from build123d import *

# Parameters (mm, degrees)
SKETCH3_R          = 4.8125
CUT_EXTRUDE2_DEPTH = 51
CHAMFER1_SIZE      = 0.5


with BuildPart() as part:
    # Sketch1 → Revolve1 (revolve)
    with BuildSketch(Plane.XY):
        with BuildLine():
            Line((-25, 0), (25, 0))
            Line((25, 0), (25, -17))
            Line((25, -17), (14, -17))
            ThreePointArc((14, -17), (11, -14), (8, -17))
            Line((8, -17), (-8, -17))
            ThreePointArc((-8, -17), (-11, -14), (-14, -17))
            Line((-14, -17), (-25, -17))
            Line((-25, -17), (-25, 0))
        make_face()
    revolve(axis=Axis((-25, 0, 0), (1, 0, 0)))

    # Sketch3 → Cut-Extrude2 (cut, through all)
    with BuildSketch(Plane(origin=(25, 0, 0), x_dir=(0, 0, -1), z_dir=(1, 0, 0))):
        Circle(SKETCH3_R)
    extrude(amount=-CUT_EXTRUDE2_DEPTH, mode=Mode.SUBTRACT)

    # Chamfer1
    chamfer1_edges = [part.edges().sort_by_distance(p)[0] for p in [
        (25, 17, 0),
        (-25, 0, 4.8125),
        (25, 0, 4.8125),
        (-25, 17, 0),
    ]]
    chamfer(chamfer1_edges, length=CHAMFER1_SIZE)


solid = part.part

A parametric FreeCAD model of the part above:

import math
import FreeCAD as App
import Part
import Sketcher
from FreeCAD import Vector


def edges_at(feature, points):
    """Names of the edges that pass closest to the given points."""
    edges = feature.Shape.Edges
    near = lambda p: min(range(len(edges)), key=lambda i: edges[i].distToShape(Part.Vertex(*p))[0])
    return sorted({f"Edge{near(p) + 1}" for p in points})

doc = App.newDocument("Part")
body = doc.addObject("PartDesign::Body", "Body")

# Sketch on XY plane
sketch1 = doc.addObject("Sketcher::SketchObject", "Sketch")
body.addObject(sketch1)
sketch1.AttachmentSupport = (doc.XY_Plane, [""])
sketch1.MapMode = "FlatFace"
sketch1.addGeometry([
    Part.LineSegment(Vector(25, 0, 0), Vector(-25, 0, 0)),  # 0
    Part.LineSegment(Vector(-25, 0, 0), Vector(-25, -17, 0)),  # 1
    Part.LineSegment(Vector(-25, -17, 0), Vector(-14, -17, 0)),  # 2
    Part.ArcOfCircle(Part.Circle(Vector(-11, -17, 0), Vector(0, 0, 1), 3), math.radians(0), math.radians(180)),  # 3
    Part.LineSegment(Vector(-8, -17, 0), Vector(8, -17, 0)),  # 4
    Part.ArcOfCircle(Part.Circle(Vector(11, -17, 0), Vector(0, 0, 1), 3), math.radians(0), math.radians(180)),  # 5
    Part.LineSegment(Vector(14, -17, 0), Vector(25, -17, 0)),  # 6
    Part.LineSegment(Vector(25, -17, 0), Vector(25, 0, 0)),  # 7
], False)
sketch1.addConstraint([
    Sketcher.Constraint("Coincident", 0, 2, 1, 1),
    Sketcher.Constraint("Coincident", 1, 2, 2, 1),
    Sketcher.Constraint("Coincident", 2, 2, 3, 2),
    Sketcher.Constraint("Coincident", 3, 1, 4, 1),
    Sketcher.Constraint("Coincident", 4, 2, 5, 2),
    Sketcher.Constraint("Coincident", 5, 1, 6, 1),
    Sketcher.Constraint("Coincident", 6, 2, 7, 1),
    Sketcher.Constraint("Coincident", 7, 2, 0, 1),
    Sketcher.Constraint("Horizontal", 0),
    Sketcher.Constraint("Vertical", 1),
    Sketcher.Constraint("Horizontal", 2),
    Sketcher.Constraint("Horizontal", 4),
    Sketcher.Constraint("Horizontal", 6),
    Sketcher.Constraint("Vertical", 7),
    Sketcher.Constraint("Equal", 3, 5),
    Sketcher.Constraint("Symmetric", 0, 2, 7, 2, -1, 1),
    Sketcher.Constraint("Symmetric", 3, 3, 5, 3, -2),
    Sketcher.Constraint("Horizontal", 5, 3, 1, 2),
    Sketcher.Constraint("Horizontal", 2, 2, 3, 1),
    Sketcher.Constraint("Horizontal", 4, 2, 5, 1),
    Sketcher.Constraint("Radius", 3, 3.0),
    Sketcher.Constraint("DistanceX", 0, 2, 0, 1, 50.0),
    Sketcher.Constraint("DistanceX", 2, 1, 2, 2, 11.0),
    Sketcher.Constraint("DistanceY", 1, 2, 1, 1, 17.0),
])
revolution = doc.addObject("PartDesign::Revolution", "Revolution")
body.addObject(revolution)
revolution.Profile = sketch1
revolution.ReferenceAxis = (sketch1, ["H_Axis"])
revolution.Angle = 360

# Sketch on YZ plane
sketch2 = doc.addObject("Sketcher::SketchObject", "Sketch001")
body.addObject(sketch2)
sketch2.AttachmentSupport = (doc.YZ_Plane, [""])
sketch2.MapMode = "FlatFace"
sketch2.AttachmentOffset = App.Placement(Vector(0, 0, 25), App.Rotation())
sketch2.addGeometry(Part.Circle(Vector(0, 0, 0), Vector(0, 0, 1), 4.8), False)
sketch2.addConstraint([
    Sketcher.Constraint("Coincident", 0, 3, -1, 1),
    Sketcher.Constraint("Diameter", 0, 9.625),
])
pocket1 = doc.addObject("PartDesign::Pocket", "Pocket")
body.addObject(pocket1)
pocket1.Profile = sketch2
pocket1.Type = "ThroughAll"
doc.recompute()

chamfer = doc.addObject("PartDesign::Chamfer", "Chamfer")
body.addObject(chamfer)
chamfer.Base = (pocket1, edges_at(pocket1, [
    (25, 17, 0),
    (-25, 0, 4.812),
    (25, 0, 4.812),
    (-25, 17, 0),
]))
chamfer.Size = 0.5

doc.recompute()
